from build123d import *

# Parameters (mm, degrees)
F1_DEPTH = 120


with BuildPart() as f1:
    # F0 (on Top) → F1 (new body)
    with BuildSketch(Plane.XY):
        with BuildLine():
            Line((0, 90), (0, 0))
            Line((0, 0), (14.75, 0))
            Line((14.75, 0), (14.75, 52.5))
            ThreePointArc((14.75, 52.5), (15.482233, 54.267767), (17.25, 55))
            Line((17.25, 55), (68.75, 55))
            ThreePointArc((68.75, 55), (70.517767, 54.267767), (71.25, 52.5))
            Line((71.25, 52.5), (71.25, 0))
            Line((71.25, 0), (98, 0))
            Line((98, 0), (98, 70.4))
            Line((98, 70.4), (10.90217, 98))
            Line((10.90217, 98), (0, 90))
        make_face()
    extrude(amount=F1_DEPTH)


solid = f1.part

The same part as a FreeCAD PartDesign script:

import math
import FreeCAD as App
import Part
import Sketcher
from FreeCAD import Vector

doc = App.newDocument("Part")
body = doc.addObject("PartDesign::Body", "Body")

# Sketch on XY plane
sketch1 = body.newObject("Sketcher::SketchObject", "Sketch")
sketch1.AttachmentSupport = (doc.getObject("XY_Plane"), [""])
sketch1.MapMode = "FlatFace"
sketch1.addGeometry(Part.LineSegment(Vector(0, 90, 0), Vector(0, 0, 0)), False)
sketch1.addGeometry(Part.LineSegment(Vector(0, 0, 0), Vector(14.8, 0, 0)), False)
sketch1.addGeometry(Part.LineSegment(Vector(14.8, 0, 0), Vector(14.8, 52.5, 0)), False)
sketch1.addGeometry(Part.ArcOfCircle(Part.Circle(Vector(17.2, 52.5, 0), Vector(0, 0, 1), 2.5), math.radians(90), math.radians(180)), False)
sketch1.addGeometry(Part.LineSegment(Vector(17.2, 55, 0), Vector(68.8, 55, 0)), False)
sketch1.addGeometry(Part.ArcOfCircle(Part.Circle(Vector(68.8, 52.5, 0), Vector(0, 0, 1), 2.5), math.radians(0), math.radians(90)), False)
sketch1.addGeometry(Part.LineSegment(Vector(71.2, 52.5, 0), Vector(71.2, 0, 0)), False)
sketch1.addGeometry(Part.LineSegment(Vector(71.2, 0, 0), Vector(98, 0, 0)), False)
sketch1.addGeometry(Part.LineSegment(Vector(98, 0, 0), Vector(98, 70.4, 0)), False)
sketch1.addGeometry(Part.LineSegment(Vector(98, 70.4, 0), Vector(10.9, 98, 0)), False)
sketch1.addGeometry(Part.LineSegment(Vector(10.9, 98, 0), Vector(0, 90, 0)), False)
sketch1.addConstraint(Sketcher.Constraint("Coincident", 0, 2, 1, 1))
sketch1.addConstraint(Sketcher.Constraint("Coincident", 1, 2, 2, 1))
sketch1.addConstraint(Sketcher.Constraint("Tangent", 2, 2, 3, 2))
sketch1.addConstraint(Sketcher.Constraint("Tangent", 3, 1, 4, 1))
sketch1.addConstraint(Sketcher.Constraint("Tangent", 4, 2, 5, 2))
sketch1.addConstraint(Sketcher.Constraint("Tangent", 5, 1, 6, 1))
sketch1.addConstraint(Sketcher.Constraint("Coincident", 6, 2, 7, 1))
sketch1.addConstraint(Sketcher.Constraint("Coincident", 7, 2, 8, 1))
sketch1.addConstraint(Sketcher.Constraint("Coincident", 8, 2, 9, 1))
sketch1.addConstraint(Sketcher.Constraint("Coincident", 9, 2, 10, 1))
sketch1.addConstraint(Sketcher.Constraint("Coincident", 10, 2, 0, 1))
sketch1.addConstraint(Sketcher.Constraint("Vertical", 0))
sketch1.addConstraint(Sketcher.Constraint("Horizontal", 1))
sketch1.addConstraint(Sketcher.Constraint("Vertical", 2))
sketch1.addConstraint(Sketcher.Constraint("Horizontal", 4))
sketch1.addConstraint(Sketcher.Constraint("Vertical", 6))
sketch1.addConstraint(Sketcher.Constraint("Horizontal", 7))
sketch1.addConstraint(Sketcher.Constraint("Vertical", 8))
sketch1.addConstraint(Sketcher.Constraint("Coincident", 0, 2, -1, 1))
sketch1.addConstraint(Sketcher.Constraint("Equal", 3, 5))
sketch1.addConstraint(Sketcher.Constraint("PointOnObject", 6, 2, -1))
sketch1.addConstraint(Sketcher.Constraint("Radius", 3, 2.5))
sketch1.addConstraint(Sketcher.Constraint("DistanceY", 0, 2, 0, 1, 90.0))
sketch1.addConstraint(Sketcher.Constraint("DistanceX", 4, 1, 4, 2, 51.5))
sketch1.addConstraint(Sketcher.Constraint("DistanceY", 2, 1, 2, 2, 52.5))
sketch1.addConstraint(Sketcher.Constraint("DistanceY", 8, 1, 8, 2, 70.4))
sketch1.addConstraint(Sketcher.Constraint("DistanceX", -1, 1, 7, 2, 98.0))
sketch1.addConstraint(Sketcher.Constraint("DistanceY", -1, 1, 9, 2, 98.0))
sketch1.addConstraint(Sketcher.Constraint("DistanceX", 1, 1, 1, 2, 14.75))
sketch1.addConstraint(Sketcher.Constraint("Distance", 9, 91.366252))
pad1 = body.newObject("PartDesign::Pad", "Pad")
pad1.Profile = sketch1
pad1.Length = 120

doc.recompute()
